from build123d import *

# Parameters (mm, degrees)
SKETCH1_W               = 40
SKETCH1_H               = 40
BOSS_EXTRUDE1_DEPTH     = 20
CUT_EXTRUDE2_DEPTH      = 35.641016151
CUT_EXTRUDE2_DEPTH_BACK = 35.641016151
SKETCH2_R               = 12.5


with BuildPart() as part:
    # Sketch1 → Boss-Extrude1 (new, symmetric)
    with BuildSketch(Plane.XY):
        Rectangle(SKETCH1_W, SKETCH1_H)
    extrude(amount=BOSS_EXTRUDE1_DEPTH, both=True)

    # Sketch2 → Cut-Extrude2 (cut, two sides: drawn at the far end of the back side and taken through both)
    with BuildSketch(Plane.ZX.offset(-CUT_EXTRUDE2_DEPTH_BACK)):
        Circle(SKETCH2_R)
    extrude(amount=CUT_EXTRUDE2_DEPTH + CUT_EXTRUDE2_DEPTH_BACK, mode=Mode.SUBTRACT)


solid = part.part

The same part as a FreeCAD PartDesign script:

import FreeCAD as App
import Part
import Sketcher

V = App.Vector
Q = App.Units.Quantity


def add_polygon(sketch, points):
    """Adds a closed chain of lines whose ends are joined by coincident constraints."""
    first, n = sketch.GeometryCount, len(points)
    for a, b in zip(points, points[1:] + points[:1]):
        sketch.addGeometry(Part.LineSegment(App.Vector(*a, 0), App.Vector(*b, 0)), False)
    for i in range(n):
        sketch.addConstraint(Sketcher.Constraint("Coincident", first + i, 2, first + (i + 1) % n, 1))

doc = App.newDocument("Part")
body = doc.addObject("PartDesign::Body", "Body")

sketch1 = doc.addObject("Sketcher::SketchObject", "Sketch")
body.addObject(sketch1)
sketch1.AttachmentSupport = (doc.XY_Plane, [""])
sketch1.MapMode = "FlatFace"
add_polygon(sketch1, [(-20, 20), (-20, -20), (20, -20), (20, 20)])
sketch1.addConstraint([
    Sketcher.Constraint("Vertical", 0),
    Sketcher.Constraint("Horizontal", 1),
    Sketcher.Constraint("Vertical", 2),
    Sketcher.Constraint("Horizontal", 3),
    Sketcher.Constraint("Symmetric", 0, 2, 2, 2, -1, 1),
    Sketcher.Constraint("Equal", 3, 0),
    Sketcher.Constraint("DistanceX", 1, 1, 1, 2, Q("40 mm")),
])
pad1 = doc.addObject("PartDesign::Pad", "Pad")
body.addObject(pad1)
pad1.Profile = sketch1
pad1.Length = 40
pad1.Midplane = True

sketch2 = doc.addObject("Sketcher::SketchObject", "Sketch001")
body.addObject(sketch2)
sketch2.AttachmentSupport = (doc.XZ_Plane, [""])
sketch2.MapMode = "FlatFace"
sketch2.addGeometry(Part.Circle(V(0, 0, 0), V(0, 0, 1), 12), False)
sketch2.addConstraint([
    Sketcher.Constraint("Coincident", 0, 3, -1, 1),
    Sketcher.Constraint("Diameter", 0, Q("25 mm")),
])
pocket1 = doc.addObject("PartDesign::Pocket", "Pocket")
body.addObject(pocket1)
pocket1.Profile = sketch2
pocket1.Type = "ThroughAll"
pocket1.Midplane = True

doc.recompute()
